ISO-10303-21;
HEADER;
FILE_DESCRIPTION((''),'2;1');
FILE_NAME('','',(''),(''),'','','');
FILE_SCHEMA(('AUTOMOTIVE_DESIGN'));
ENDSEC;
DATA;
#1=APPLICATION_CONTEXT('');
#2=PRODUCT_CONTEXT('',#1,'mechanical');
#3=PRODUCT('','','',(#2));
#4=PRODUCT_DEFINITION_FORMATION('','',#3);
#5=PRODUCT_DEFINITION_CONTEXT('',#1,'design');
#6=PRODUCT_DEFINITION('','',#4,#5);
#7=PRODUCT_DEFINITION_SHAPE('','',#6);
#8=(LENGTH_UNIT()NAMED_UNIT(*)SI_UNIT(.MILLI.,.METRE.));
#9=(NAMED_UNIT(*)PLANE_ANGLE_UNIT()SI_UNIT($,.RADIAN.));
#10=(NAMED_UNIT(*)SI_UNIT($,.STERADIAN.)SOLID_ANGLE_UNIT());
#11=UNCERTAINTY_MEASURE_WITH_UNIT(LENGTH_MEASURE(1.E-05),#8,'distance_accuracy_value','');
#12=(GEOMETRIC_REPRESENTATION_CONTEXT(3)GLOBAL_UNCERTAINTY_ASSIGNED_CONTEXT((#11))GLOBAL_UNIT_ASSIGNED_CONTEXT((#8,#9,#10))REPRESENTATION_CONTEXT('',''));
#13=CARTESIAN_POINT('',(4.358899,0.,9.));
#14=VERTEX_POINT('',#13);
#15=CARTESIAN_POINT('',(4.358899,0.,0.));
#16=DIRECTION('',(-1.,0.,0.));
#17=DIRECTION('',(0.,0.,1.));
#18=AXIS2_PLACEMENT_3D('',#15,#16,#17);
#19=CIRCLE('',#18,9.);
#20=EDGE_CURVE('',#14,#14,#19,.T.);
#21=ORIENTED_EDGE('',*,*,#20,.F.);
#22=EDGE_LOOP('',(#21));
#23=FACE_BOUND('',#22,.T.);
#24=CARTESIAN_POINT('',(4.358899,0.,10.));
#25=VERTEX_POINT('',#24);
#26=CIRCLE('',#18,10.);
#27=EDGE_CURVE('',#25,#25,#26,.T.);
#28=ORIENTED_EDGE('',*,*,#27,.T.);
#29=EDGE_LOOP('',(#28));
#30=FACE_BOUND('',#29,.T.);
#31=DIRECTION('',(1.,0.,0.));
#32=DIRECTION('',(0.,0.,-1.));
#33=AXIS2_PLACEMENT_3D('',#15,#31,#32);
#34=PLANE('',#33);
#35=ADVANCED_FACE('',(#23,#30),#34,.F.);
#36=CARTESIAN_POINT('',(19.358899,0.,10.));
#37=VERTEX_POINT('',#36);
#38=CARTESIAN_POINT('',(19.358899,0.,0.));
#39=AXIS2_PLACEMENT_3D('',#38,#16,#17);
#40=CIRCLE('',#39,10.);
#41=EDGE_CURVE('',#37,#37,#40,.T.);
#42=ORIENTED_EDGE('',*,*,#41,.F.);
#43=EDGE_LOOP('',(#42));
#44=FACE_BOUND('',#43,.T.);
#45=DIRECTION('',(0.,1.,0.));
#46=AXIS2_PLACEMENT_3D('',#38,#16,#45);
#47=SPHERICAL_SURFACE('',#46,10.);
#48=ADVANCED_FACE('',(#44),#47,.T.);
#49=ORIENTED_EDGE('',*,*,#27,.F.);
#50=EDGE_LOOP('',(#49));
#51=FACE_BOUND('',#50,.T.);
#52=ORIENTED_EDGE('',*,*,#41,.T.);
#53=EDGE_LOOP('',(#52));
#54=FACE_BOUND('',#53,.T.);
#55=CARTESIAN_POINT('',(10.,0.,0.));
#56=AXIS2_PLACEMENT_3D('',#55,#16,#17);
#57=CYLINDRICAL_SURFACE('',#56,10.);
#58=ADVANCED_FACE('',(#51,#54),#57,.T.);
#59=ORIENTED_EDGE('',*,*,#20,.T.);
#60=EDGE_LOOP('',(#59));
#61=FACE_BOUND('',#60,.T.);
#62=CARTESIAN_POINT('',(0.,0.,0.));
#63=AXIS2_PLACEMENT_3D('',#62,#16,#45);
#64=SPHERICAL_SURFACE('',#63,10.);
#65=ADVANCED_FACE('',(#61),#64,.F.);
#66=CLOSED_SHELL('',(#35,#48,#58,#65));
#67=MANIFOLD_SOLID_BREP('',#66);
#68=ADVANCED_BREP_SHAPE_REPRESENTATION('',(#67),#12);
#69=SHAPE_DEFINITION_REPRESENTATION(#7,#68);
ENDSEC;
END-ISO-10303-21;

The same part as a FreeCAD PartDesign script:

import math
import FreeCAD as App
import Part
import Sketcher
from FreeCAD import Vector

doc = App.newDocument("Part")
body = doc.addObject("PartDesign::Body", "Body")

# Sketch on XY plane
sketch1 = body.newObject("Sketcher::SketchObject", "Sketch")
sketch1.AttachmentSupport = (doc.getObject("XY_Plane"), [""])
sketch1.MapMode = "FlatFace"
sketch1.addGeometry([
    Part.ArcOfCircle(Part.Circle(Vector(19.4, 0, 0), Vector(0, 0, 1), 10), math.radians(0), math.radians(90)),  # 0
    Part.LineSegment(Vector(19.4, 10, 0), Vector(4.4, 10, 0)),  # 1
    Part.LineSegment(Vector(4.4, 10, 0), Vector(4.4, 9, 0)),  # 2
    Part.ArcOfCircle(Part.Circle(Vector(0, 0, 0), Vector(0, 0, 1), 10), math.radians(0), math.radians(64)),  # 3
    Part.LineSegment(Vector(10, 0, 0), Vector(29.4, 0, 0)),  # 4
], False)
sketch1.addConstraint([
    Sketcher.Constraint("Tangent", 0, 2, 1, 1),
    Sketcher.Constraint("Coincident", 1, 2, 2, 1),
    Sketcher.Constraint("Coincident", 2, 2, 3, 2),
    Sketcher.Constraint("Coincident", 3, 1, 4, 1),
    Sketcher.Constraint("Coincident", 4, 2, 0, 1),
    Sketcher.Constraint("Horizontal", 1),
    Sketcher.Constraint("Vertical", 2),
    Sketcher.Constraint("Horizontal", 4),
    Sketcher.Constraint("Coincident", 3, 3, -1, 1),
    Sketcher.Constraint("Equal", 0, 3),
    Sketcher.Constraint("PointOnObject", 0, 3, -1),
    Sketcher.Constraint("PointOnObject", 3, 1, -1),
    Sketcher.Constraint("Radius", 0, 10.0),
    Sketcher.Constraint("DistanceX", 1, 2, 1, 1, 15.0),
    Sketcher.Constraint("DistanceY", 2, 2, 2, 1, 1.0),
])
revolution = body.newObject("PartDesign::Revolution", "Revolution")
revolution.Profile = sketch1
revolution.ReferenceAxis = (sketch1, ["H_Axis"])
revolution.Angle = 360

doc.recompute()
